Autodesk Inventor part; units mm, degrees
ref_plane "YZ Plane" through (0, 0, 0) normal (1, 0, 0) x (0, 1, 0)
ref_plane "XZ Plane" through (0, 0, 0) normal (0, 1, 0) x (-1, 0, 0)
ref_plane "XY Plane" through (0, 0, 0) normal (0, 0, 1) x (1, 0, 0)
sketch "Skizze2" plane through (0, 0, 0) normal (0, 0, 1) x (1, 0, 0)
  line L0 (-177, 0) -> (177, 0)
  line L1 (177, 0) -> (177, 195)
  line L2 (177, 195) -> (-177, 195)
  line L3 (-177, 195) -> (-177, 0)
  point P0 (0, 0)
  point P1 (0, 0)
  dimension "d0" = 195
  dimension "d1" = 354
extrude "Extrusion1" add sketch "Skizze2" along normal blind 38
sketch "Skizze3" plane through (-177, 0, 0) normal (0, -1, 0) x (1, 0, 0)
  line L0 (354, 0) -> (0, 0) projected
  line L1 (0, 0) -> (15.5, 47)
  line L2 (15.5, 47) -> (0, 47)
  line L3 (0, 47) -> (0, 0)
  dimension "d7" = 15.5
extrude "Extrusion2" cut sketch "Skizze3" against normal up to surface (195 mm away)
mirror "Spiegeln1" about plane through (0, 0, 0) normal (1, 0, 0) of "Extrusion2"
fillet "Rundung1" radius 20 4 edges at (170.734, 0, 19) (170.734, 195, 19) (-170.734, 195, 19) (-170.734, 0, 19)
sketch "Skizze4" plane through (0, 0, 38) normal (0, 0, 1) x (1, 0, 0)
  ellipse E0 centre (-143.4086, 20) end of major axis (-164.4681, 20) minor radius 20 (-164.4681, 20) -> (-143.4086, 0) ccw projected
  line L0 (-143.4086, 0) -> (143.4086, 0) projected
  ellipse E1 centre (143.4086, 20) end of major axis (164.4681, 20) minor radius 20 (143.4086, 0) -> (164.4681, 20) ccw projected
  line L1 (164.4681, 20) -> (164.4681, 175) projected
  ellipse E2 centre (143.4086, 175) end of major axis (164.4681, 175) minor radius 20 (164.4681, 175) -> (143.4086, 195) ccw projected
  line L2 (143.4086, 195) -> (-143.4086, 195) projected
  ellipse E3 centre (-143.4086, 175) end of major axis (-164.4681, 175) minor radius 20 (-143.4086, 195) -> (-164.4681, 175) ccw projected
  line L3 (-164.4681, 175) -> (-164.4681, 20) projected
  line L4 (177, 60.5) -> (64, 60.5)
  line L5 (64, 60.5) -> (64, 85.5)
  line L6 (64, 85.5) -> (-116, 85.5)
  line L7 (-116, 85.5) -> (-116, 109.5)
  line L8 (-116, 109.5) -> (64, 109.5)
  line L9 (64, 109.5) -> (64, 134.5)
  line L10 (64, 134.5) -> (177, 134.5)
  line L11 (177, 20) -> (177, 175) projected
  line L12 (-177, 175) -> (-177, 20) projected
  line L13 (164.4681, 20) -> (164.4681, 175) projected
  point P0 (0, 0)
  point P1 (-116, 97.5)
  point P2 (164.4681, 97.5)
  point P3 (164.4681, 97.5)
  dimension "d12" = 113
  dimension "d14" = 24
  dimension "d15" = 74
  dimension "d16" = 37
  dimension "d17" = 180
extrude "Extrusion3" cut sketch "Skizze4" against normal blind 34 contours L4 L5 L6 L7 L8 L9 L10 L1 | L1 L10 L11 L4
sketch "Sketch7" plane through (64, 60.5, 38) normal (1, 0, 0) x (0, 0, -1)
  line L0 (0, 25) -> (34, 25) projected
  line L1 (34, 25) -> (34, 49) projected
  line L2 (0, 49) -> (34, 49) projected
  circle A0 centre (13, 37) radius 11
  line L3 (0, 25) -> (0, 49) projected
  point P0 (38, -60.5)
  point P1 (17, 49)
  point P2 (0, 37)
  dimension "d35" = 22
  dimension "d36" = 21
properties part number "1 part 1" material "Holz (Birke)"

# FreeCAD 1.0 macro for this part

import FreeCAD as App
import Part
import Sketcher
from FreeCAD import Vector


def edges_at(feature, points):
    """Names of the edges that pass closest to the given points."""
    edges = feature.Shape.Edges
    near = lambda p: min(range(len(edges)), key=lambda i: edges[i].distToShape(Part.Vertex(*p))[0])
    return sorted({f"Edge{near(p) + 1}" for p in points})


def add_polygon(sketch, points):
    """Adds a closed chain of lines whose ends are joined by coincident constraints."""
    first, n = sketch.GeometryCount, len(points)
    for a, b in zip(points, points[1:] + points[:1]):
        sketch.addGeometry(Part.LineSegment(App.Vector(*a, 0), App.Vector(*b, 0)), False)
    for i in range(n):
        sketch.addConstraint(Sketcher.Constraint("Coincident", first + i, 2, first + (i + 1) % n, 1))

doc = App.newDocument("Part")
params = doc.addObject("Spreadsheet::Sheet", "Params")
for row, (alias, value) in enumerate([
    ("sketch1_width", "354 mm"),
    ("sketch1_height", "195 mm"),
    ("pad1_length", "38 mm"),
    ("sketch2_width", "15.5 mm"),
    ("sketch2_height", "47 mm"),
    ("pocket1_length", "195 mm"),
    ("fillet_radius", "20 mm"),
    ("sketch3_width", "113 mm"),
    ("sketch3_width2", "180 mm"),
    ("sketch3_height", "74 mm"),
    ("sketch3_height2", "24 mm"),
    ("pocket2_length", "34 mm"),
], start=1):
    params.set(f"A{row}", alias)
    params.set(f"B{row}", "=" + value)
    params.setAlias(f"B{row}", alias)

body = doc.addObject("PartDesign::Body", "Body")

sketch1 = body.newObject("Sketcher::SketchObject", "Sketch")
sketch1.AttachmentSupport = (doc.getObject("XY_Plane"), [""])
sketch1.MapMode = "FlatFace"
add_polygon(sketch1, [(-177, 195), (-177, 0), (177, 0), (177, 195)])
sketch1.addConstraint([
    Sketcher.Constraint("Vertical", 0),
    Sketcher.Constraint("Horizontal", 1),
    Sketcher.Constraint("Vertical", 2),
    Sketcher.Constraint("Horizontal", 3),
    Sketcher.Constraint("Symmetric", 0, 2, 1, 2, -1, 1),
    Sketcher.Constraint("DistanceX", 1, 1, 1, 2, 354.0),
    Sketcher.Constraint("DistanceY", 0, 2, 0, 1, 195.0),
])
sketch1.setExpression("Constraints[9]", "Params.sketch1_width")
sketch1.setExpression("Constraints[10]", "Params.sketch1_height")
pad1 = body.newObject("PartDesign::Pad", "Pad")
pad1.Profile = sketch1
pad1.setExpression("Length", "Params.pad1_length")

sketch2 = body.newObject("Sketcher::SketchObject", "Sketch001")
sketch2.AttachmentSupport = (doc.getObject("XZ_Plane"), [""])
sketch2.MapMode = "FlatFace"
add_polygon(sketch2, [(-177, 47), (-177, 0), (-161.5, 47)])
sketch2.addConstraint([
    Sketcher.Constraint("Vertical", 0),
    Sketcher.Constraint("Horizontal", 2),
    Sketcher.Constraint("PointOnObject", 0, 2, -1),
    Sketcher.Constraint("DistanceX", 2, 2, 2, 1, 15.5),
    Sketcher.Constraint("DistanceY", 0, 2, 0, 1, 47.0),
    Sketcher.Constraint("DistanceX", 0, 2, -1, 1, 177.0),
])
sketch2.setExpression("Constraints[6]", "Params.sketch2_width")
sketch2.setExpression("Constraints[7]", "Params.sketch2_height")
pocket1 = body.newObject("PartDesign::Pocket", "Pocket")
pocket1.Profile = sketch2
pocket1.setExpression("Length", "Params.pocket1_length")
doc.recompute()

mirrored = body.newObject("PartDesign::Mirrored", "Mirrored")
mirrored.Originals = [pocket1]
mirrored.MirrorPlane = (doc.getObject("YZ_Plane"), [""])
body.Tip = mirrored
doc.recompute()

fillet = body.newObject("PartDesign::Fillet", "Fillet")
fillet.Base = (mirrored, edges_at(mirrored, [
    (170.734, 0, 19),
    (170.734, 195, 19),
    (-170.734, 195, 19),
    (-170.734, 0, 19),
]))
fillet.setExpression("Radius", "Params.fillet_radius")

sketch3 = body.newObject("Sketcher::SketchObject", "Sketch002")
sketch3.AttachmentSupport = (doc.getObject("XY_Plane"), [""])
sketch3.MapMode = "FlatFace"
sketch3.AttachmentOffset = App.Placement(Vector(0, 0, 38), App.Rotation())
add_polygon(sketch3, [(64, 60.5), (177, 60.5), (177, 134.5), (64, 134.5), (64, 109.5), (-116, 109.5), (-116, 85.5), (64, 85.5)])
sketch3.addConstraint([
    Sketcher.Constraint("Horizontal", 0),
    Sketcher.Constraint("Vertical", 1),
    Sketcher.Constraint("Horizontal", 2),
    Sketcher.Constraint("Vertical", 3),
    Sketcher.Constraint("Horizontal", 4),
    Sketcher.Constraint("Vertical", 5),
    Sketcher.Constraint("Horizontal", 6),
    Sketcher.Constraint("Vertical", 7),
    Sketcher.Constraint("Vertical", 3, 2, 6, 2),
    Sketcher.Constraint("Equal", 3, 7),
    Sketcher.Constraint("DistanceX", 0, 1, 0, 2, 113.0),
    Sketcher.Constraint("DistanceX", 4, 2, 4, 1, 180.0),
    Sketcher.Constraint("DistanceY", 1, 1, 1, 2, 74.0),
    Sketcher.Constraint("DistanceY", 5, 2, 5, 1, 24.0),
    Sketcher.Constraint("DistanceX", -1, 1, 0, 2, 177.0),
    Sketcher.Constraint("DistanceY", -1, 1, 0, 2, 60.5),
])
sketch3.setExpression("Constraints[18]", "Params.sketch3_width")
sketch3.setExpression("Constraints[19]", "Params.sketch3_width2")
sketch3.setExpression("Constraints[20]", "Params.sketch3_height")
sketch3.setExpression("Constraints[21]", "Params.sketch3_height2")
pocket2 = body.newObject("PartDesign::Pocket", "Pocket001")
pocket2.Profile = sketch3
pocket2.setExpression("Length", "Params.pocket2_length")

doc.recompute()
